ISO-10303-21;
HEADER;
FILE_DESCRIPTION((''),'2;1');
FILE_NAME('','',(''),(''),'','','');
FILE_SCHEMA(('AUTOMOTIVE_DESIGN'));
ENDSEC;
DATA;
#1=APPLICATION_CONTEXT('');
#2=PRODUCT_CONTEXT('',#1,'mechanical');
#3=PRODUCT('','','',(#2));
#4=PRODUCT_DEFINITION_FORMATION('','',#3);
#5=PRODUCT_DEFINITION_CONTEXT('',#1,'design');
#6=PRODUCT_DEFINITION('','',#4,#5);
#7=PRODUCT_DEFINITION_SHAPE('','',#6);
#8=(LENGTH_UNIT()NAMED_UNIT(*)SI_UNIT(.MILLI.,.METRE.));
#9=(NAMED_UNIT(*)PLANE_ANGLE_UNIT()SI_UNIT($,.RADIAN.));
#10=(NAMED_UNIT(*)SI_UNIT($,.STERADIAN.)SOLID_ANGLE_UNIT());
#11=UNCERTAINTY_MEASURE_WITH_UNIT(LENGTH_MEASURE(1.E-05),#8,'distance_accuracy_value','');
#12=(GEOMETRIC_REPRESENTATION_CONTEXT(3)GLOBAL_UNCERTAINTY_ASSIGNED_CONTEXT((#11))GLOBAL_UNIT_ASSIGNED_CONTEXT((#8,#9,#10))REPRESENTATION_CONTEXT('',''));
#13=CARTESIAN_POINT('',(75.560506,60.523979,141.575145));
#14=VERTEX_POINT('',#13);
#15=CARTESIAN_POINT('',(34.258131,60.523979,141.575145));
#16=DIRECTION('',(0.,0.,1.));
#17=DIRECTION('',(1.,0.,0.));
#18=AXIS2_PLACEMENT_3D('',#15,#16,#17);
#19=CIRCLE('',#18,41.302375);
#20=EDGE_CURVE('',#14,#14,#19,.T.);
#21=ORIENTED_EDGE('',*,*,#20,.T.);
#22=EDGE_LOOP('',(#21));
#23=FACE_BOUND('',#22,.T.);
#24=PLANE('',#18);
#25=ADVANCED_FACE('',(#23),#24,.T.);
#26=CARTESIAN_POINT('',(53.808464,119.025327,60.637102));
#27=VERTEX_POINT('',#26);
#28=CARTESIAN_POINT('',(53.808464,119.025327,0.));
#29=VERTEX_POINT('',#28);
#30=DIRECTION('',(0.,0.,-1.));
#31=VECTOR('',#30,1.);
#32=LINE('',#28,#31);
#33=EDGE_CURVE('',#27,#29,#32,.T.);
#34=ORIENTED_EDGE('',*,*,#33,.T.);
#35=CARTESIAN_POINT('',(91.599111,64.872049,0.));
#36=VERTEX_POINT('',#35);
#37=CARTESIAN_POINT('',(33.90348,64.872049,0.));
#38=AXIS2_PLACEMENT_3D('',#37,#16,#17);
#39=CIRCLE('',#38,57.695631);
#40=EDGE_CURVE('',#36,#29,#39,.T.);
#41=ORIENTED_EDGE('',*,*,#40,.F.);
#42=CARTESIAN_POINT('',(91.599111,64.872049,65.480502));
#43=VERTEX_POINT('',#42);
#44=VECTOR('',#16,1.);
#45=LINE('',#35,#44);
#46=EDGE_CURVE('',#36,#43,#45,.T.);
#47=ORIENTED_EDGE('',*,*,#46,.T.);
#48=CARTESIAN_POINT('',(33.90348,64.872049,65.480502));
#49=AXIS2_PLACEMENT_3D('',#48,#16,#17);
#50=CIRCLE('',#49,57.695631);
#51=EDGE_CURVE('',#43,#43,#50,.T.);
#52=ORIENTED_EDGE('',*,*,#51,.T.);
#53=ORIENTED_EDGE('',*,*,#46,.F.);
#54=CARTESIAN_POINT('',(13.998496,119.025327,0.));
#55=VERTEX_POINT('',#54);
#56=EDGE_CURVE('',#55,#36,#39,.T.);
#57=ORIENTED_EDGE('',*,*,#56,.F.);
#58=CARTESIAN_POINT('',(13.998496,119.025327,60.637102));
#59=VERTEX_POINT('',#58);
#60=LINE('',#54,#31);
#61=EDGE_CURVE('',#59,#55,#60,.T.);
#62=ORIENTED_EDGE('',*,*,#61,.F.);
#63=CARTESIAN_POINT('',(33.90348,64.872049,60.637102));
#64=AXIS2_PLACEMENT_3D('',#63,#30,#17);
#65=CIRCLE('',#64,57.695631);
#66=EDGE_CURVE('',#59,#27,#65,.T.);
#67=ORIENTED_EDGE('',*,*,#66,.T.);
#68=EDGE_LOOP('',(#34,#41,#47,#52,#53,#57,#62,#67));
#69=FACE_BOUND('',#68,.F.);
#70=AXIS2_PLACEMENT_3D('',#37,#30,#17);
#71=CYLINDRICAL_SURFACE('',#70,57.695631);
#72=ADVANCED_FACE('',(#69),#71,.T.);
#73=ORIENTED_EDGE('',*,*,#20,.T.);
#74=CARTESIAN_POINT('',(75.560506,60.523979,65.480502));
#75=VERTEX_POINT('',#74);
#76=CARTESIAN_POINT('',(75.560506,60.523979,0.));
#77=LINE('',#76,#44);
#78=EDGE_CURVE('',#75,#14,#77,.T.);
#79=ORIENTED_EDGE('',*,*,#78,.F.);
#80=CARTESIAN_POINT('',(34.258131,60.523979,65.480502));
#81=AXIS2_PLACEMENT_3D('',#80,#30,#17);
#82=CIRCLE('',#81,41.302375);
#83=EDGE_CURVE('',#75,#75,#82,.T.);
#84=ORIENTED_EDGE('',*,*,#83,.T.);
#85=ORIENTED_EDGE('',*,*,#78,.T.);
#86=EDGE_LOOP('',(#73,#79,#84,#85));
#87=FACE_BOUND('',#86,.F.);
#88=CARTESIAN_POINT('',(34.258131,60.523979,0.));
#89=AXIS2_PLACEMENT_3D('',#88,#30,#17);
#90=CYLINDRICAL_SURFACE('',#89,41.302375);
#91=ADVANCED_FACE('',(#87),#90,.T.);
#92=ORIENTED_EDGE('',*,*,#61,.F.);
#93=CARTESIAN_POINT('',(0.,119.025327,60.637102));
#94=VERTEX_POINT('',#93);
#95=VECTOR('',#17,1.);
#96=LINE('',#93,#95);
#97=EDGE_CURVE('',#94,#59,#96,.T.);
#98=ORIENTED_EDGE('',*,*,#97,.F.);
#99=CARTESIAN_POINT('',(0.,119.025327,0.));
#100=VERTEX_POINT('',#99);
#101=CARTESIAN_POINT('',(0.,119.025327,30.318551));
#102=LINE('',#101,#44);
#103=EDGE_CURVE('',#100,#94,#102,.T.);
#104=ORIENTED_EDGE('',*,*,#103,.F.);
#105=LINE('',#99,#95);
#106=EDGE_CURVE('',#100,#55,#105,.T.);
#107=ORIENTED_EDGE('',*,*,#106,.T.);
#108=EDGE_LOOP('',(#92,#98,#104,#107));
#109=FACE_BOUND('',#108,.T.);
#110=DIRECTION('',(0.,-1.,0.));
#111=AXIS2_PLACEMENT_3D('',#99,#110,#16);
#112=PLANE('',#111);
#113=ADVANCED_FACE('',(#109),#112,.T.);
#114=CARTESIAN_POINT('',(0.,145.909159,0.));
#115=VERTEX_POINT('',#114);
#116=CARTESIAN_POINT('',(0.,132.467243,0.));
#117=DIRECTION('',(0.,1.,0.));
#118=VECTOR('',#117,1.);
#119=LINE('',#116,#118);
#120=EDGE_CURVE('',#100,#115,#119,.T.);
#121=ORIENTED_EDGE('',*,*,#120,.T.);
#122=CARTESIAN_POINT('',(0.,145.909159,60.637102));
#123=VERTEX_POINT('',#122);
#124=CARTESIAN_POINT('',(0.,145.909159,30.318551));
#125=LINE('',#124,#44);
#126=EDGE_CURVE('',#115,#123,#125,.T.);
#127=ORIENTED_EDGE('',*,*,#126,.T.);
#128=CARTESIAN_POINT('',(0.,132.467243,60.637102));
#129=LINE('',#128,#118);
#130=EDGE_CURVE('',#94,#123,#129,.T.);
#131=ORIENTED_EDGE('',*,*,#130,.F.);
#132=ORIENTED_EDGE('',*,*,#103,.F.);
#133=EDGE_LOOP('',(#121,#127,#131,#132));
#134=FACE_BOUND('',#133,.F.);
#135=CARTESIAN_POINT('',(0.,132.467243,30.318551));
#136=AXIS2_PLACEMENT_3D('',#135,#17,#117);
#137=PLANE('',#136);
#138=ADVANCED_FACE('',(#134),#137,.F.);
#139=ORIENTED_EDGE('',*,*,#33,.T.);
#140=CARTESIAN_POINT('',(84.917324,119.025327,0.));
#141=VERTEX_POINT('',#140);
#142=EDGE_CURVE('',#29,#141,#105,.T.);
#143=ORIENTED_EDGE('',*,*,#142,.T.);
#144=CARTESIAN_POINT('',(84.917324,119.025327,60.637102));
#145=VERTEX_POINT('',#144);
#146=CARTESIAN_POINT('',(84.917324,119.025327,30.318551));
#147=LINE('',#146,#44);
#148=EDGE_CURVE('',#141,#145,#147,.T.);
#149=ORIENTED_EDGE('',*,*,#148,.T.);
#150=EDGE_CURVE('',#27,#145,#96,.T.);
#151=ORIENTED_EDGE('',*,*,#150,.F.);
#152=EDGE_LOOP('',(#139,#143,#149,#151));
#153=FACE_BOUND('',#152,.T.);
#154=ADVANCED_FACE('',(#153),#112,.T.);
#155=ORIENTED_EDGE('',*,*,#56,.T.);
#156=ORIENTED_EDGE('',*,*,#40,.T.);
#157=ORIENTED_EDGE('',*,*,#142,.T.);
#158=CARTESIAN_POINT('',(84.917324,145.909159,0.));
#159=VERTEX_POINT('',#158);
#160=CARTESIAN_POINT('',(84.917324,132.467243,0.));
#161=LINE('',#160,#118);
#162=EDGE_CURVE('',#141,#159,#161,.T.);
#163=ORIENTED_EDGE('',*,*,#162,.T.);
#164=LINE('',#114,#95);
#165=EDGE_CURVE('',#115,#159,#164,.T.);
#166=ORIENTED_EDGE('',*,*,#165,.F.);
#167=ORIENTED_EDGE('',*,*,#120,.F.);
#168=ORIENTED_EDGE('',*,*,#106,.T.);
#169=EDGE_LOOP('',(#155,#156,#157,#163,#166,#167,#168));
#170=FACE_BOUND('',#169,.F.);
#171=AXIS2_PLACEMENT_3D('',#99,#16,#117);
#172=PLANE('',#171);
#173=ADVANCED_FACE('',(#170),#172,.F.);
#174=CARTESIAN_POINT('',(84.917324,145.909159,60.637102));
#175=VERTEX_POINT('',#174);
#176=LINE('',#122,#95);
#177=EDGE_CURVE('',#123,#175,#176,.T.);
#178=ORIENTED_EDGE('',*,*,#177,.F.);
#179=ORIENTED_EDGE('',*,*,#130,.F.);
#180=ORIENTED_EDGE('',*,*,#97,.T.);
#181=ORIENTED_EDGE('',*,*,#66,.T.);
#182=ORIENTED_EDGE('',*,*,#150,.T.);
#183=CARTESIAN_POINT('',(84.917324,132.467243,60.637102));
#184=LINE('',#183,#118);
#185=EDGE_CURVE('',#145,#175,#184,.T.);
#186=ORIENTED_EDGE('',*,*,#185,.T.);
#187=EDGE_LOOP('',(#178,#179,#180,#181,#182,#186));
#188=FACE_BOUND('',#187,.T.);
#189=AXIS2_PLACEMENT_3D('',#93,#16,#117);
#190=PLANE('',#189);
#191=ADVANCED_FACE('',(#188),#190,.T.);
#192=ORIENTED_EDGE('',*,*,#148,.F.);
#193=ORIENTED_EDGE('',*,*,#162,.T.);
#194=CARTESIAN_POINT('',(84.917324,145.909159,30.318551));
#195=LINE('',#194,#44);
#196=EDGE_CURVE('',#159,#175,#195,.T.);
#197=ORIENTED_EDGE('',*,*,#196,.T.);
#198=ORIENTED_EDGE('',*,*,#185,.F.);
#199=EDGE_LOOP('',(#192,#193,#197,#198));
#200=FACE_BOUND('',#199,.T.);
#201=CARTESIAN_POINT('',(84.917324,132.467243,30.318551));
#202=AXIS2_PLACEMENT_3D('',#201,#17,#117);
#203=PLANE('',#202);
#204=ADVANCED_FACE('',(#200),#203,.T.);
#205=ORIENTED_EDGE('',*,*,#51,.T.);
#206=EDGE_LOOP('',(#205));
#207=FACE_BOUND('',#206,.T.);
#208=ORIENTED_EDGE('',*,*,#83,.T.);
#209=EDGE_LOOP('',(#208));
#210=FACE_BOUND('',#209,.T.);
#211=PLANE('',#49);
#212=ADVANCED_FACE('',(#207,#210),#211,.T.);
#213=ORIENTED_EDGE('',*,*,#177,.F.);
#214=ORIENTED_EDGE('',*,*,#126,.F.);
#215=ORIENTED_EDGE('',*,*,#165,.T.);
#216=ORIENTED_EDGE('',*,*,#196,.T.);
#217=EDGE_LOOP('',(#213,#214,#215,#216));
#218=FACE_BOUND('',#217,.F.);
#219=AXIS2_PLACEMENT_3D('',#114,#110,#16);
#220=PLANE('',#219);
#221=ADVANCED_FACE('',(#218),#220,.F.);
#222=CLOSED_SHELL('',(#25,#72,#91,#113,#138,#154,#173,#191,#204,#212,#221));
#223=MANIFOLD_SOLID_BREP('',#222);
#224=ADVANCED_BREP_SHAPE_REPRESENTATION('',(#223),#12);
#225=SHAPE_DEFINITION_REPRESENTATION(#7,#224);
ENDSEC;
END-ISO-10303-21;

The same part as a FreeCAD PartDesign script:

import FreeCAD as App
import Part
import Sketcher
from FreeCAD import Vector
Q = App.Units.Quantity

doc = App.newDocument("Part")
body = doc.addObject("PartDesign::Body", "Body")

# Sketch on XY plane
sketch1 = body.newObject("Sketcher::SketchObject", "Sketch")
sketch1.AttachmentSupport = (doc.getObject("XY_Plane"), [""])
sketch1.MapMode = "FlatFace"
sketch1.addGeometry(Part.Circle(Vector(34, 65, 0), Vector(0, 0, 1), 58), False)
sketch1.addConstraint([
    Sketcher.Constraint("Diameter", 0, Q("115.391262 mm")),
    Sketcher.Constraint("DistanceX", -1, 1, 0, 3, Q("33.90348 mm")),
    Sketcher.Constraint("DistanceY", -1, 1, 0, 3, Q("64.872049 mm")),
])
pad1 = body.newObject("PartDesign::Pad", "Pad")
pad1.Profile = sketch1
pad1.Length = 65.480502

# Sketch on XY plane
sketch2 = body.newObject("Sketcher::SketchObject", "Sketch001")
sketch2.AttachmentSupport = (doc.getObject("XY_Plane"), [""])
sketch2.MapMode = "FlatFace"
sketch2.addGeometry(Part.Circle(Vector(34, 61, 0), Vector(0, 0, 1), 41), False)
sketch2.addConstraint([
    Sketcher.Constraint("Diameter", 0, Q("82.60475 mm")),
    Sketcher.Constraint("DistanceX", -1, 1, 0, 3, Q("34.258131 mm")),
    Sketcher.Constraint("DistanceY", -1, 1, 0, 3, Q("60.523979 mm")),
])
pad2 = body.newObject("PartDesign::Pad", "Pad001")
pad2.Profile = sketch2
pad2.Length = 141.575145

# Sketch on YZ plane
sketch3 = body.newObject("Sketcher::SketchObject", "Sketch002")
sketch3.AttachmentSupport = (doc.getObject("YZ_Plane"), [""])
sketch3.MapMode = "FlatFace"
sketch3.addGeometry([
    Part.LineSegment(Vector(119, 61, 0), Vector(119, 0, 0)),
    Part.LineSegment(Vector(119, 0, 0), Vector(146, 0, 0)),
    Part.LineSegment(Vector(146, 0, 0), Vector(146, 61, 0)),
    Part.LineSegment(Vector(146, 61, 0), Vector(119, 61, 0)),
], False)
sketch3.addConstraint([
    Sketcher.Constraint("Coincident", 0, 2, 1, 1),
    Sketcher.Constraint("Coincident", 1, 2, 2, 1),
    Sketcher.Constraint("Coincident", 2, 2, 3, 1),
    Sketcher.Constraint("Coincident", 3, 2, 0, 1),
    Sketcher.Constraint("Vertical", 0),
    Sketcher.Constraint("Horizontal", 1),
    Sketcher.Constraint("Vertical", 2),
    Sketcher.Constraint("Horizontal", 3),
    Sketcher.Constraint("PointOnObject", 0, 2, -1),
    Sketcher.Constraint("DistanceX", 1, 1, 1, 2, Q("26.883833 mm")),
    Sketcher.Constraint("DistanceY", 0, 2, 0, 1, Q("60.637102 mm")),
    Sketcher.Constraint("DistanceX", -1, 1, 1, 2, Q("145.909159 mm")),
])
pad3 = body.newObject("PartDesign::Pad", "Pad002")
pad3.Profile = sketch3
pad3.Length = 84.917324

doc.recompute()
